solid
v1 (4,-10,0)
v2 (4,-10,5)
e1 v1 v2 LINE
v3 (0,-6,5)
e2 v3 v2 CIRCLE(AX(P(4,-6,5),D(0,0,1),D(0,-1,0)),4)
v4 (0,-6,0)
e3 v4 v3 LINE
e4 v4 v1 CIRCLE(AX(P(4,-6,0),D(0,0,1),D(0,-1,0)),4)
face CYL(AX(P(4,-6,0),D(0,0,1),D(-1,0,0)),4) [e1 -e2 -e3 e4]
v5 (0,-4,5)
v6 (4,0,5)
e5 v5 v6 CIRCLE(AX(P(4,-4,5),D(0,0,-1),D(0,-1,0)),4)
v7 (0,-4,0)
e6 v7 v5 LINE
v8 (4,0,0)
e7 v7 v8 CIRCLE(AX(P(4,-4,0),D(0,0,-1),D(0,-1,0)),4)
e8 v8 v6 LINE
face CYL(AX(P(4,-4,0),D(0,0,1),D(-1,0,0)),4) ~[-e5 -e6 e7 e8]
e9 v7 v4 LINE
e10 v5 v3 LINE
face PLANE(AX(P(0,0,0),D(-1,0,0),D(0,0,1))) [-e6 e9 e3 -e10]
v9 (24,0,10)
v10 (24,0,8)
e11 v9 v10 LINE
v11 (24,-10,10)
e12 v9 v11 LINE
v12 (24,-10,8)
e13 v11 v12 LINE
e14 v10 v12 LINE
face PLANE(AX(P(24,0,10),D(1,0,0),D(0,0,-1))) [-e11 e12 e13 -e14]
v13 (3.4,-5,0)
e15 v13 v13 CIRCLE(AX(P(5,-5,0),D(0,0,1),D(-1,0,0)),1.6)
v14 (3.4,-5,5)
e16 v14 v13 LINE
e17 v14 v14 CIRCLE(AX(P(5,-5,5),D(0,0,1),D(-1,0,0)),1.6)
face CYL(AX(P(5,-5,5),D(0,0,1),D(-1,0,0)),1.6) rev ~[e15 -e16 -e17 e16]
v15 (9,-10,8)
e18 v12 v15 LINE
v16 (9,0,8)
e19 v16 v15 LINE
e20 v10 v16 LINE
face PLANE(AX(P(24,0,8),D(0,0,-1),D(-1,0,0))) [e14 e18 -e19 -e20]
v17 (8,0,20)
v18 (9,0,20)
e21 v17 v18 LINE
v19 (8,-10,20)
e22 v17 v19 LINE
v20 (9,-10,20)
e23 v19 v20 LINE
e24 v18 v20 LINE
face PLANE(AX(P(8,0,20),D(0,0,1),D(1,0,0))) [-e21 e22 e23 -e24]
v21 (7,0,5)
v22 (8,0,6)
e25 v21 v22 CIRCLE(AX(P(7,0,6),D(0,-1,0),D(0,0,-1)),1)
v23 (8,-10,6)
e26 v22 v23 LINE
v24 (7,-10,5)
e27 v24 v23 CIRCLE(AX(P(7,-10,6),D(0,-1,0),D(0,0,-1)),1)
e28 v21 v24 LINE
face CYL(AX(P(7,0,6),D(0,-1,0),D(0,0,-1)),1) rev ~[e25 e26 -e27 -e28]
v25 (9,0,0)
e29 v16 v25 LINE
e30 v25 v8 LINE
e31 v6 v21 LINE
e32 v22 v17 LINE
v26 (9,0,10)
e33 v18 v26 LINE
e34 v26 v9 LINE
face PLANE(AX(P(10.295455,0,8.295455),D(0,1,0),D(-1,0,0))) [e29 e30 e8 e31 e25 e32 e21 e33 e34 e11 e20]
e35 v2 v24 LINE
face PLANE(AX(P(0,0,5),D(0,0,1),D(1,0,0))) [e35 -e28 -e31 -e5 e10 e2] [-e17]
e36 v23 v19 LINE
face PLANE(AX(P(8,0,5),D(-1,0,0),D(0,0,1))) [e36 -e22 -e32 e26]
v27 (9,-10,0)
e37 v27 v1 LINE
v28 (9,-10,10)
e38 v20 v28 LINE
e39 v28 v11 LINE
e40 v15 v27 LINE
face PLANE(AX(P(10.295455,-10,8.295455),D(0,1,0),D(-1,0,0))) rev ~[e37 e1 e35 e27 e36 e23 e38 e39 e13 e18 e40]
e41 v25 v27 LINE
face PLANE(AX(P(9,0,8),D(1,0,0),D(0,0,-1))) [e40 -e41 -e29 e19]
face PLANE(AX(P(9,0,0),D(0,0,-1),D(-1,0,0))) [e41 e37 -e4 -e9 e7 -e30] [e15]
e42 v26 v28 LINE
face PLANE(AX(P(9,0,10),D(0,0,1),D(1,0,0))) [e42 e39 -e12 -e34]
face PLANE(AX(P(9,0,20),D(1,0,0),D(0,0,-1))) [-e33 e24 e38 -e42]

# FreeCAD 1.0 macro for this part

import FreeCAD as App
import Part
import Sketcher


def edges_at(feature, points):
    """Names of the edges that pass closest to the given points."""
    edges = feature.Shape.Edges
    near = lambda p: min(range(len(edges)), key=lambda i: edges[i].distToShape(Part.Vertex(*p))[0])
    return sorted({f"Edge{near(p) + 1}" for p in points})

doc = App.newDocument("Part")
body = doc.addObject("PartDesign::Body", "Body")

sketch1 = body.newObject("Sketcher::SketchObject", "Sketch")
sketch1.AttachmentSupport = (doc.getObject("XZ_Plane"), [""])
sketch1.MapMode = "FlatFace"
sketch1.addGeometry([
    Part.LineSegment(App.Vector(0, 5, 0), App.Vector(0, 0, 0)),
    Part.LineSegment(App.Vector(0, 0, 0), App.Vector(9, 0, 0)),
    Part.LineSegment(App.Vector(9, 0, 0), App.Vector(9, 8, 0)),
    Part.LineSegment(App.Vector(9, 8, 0), App.Vector(24, 8, 0)),
    Part.LineSegment(App.Vector(24, 8, 0), App.Vector(24, 10, 0)),
    Part.LineSegment(App.Vector(24, 10, 0), App.Vector(9, 10, 0)),
    Part.LineSegment(App.Vector(9, 10, 0), App.Vector(9, 20, 0)),
    Part.LineSegment(App.Vector(9, 20, 0), App.Vector(8, 20, 0)),
    Part.LineSegment(App.Vector(8, 20, 0), App.Vector(8, 5, 0)),
    Part.LineSegment(App.Vector(8, 5, 0), App.Vector(0, 5, 0)),
], False)
sketch1.addConstraint([
    Sketcher.Constraint("Coincident", 0, 2, 1, 1),
    Sketcher.Constraint("Coincident", 1, 2, 2, 1),
    Sketcher.Constraint("Coincident", 2, 2, 3, 1),
    Sketcher.Constraint("Coincident", 3, 2, 4, 1),
    Sketcher.Constraint("Coincident", 4, 2, 5, 1),
    Sketcher.Constraint("Coincident", 5, 2, 6, 1),
    Sketcher.Constraint("Coincident", 6, 2, 7, 1),
    Sketcher.Constraint("Coincident", 7, 2, 8, 1),
    Sketcher.Constraint("Coincident", 8, 2, 9, 1),
    Sketcher.Constraint("Coincident", 9, 2, 0, 1),
    Sketcher.Constraint("Vertical", 0),
    Sketcher.Constraint("Horizontal", 1),
    Sketcher.Constraint("Vertical", 2),
    Sketcher.Constraint("Horizontal", 3),
    Sketcher.Constraint("Vertical", 4),
    Sketcher.Constraint("Horizontal", 5),
    Sketcher.Constraint("Vertical", 6),
    Sketcher.Constraint("Horizontal", 7),
    Sketcher.Constraint("Vertical", 8),
    Sketcher.Constraint("Horizontal", 9),
    Sketcher.Constraint("Coincident", 0, 2, -1, 1),
    Sketcher.Constraint("Vertical", 2, 2, 5, 2),
    Sketcher.Constraint("Equal", 9, 2),
    Sketcher.Constraint("Equal", 5, 8),
    Sketcher.Constraint("DistanceX", 1, 1, 1, 2, 9.0),
    Sketcher.Constraint("DistanceX", 3, 1, 3, 2, 15.0),
    Sketcher.Constraint("DistanceX", 7, 2, 7, 1, 1.0),
    Sketcher.Constraint("DistanceY", 0, 2, 0, 1, 5.0),
    Sketcher.Constraint("DistanceY", 4, 1, 4, 2, 2.0),
])
pad1 = body.newObject("PartDesign::Pad", "Pad")
pad1.Profile = sketch1
pad1.Length = 10

sketch2 = body.newObject("Sketcher::SketchObject", "Sketch001")
sketch2.AttachmentSupport = (doc.getObject("XY_Plane"), [""])
sketch2.MapMode = "FlatFace"
sketch2.AttachmentOffset = App.Placement(App.Vector(0, 0, 5), App.Rotation())
sketch2.addGeometry(Part.Circle(App.Vector(5, -5, 0), App.Vector(0, 0, 1), 1.6), False)
sketch2.addConstraint([
    Sketcher.Constraint("Diameter", 0, 3.2),
    Sketcher.Constraint("DistanceX", -1, 1, 0, 3, 5.0),
    Sketcher.Constraint("DistanceY", 0, 3, -1, 1, 5.0),
])
pocket1 = body.newObject("PartDesign::Pocket", "Pocket")
pocket1.Profile = sketch2
pocket1.Length = 5
doc.recompute()

fillet = body.newObject("PartDesign::Fillet", "Fillet")
fillet.Base = (pocket1, edges_at(pocket1, [(0, 0, 2.5), (0, -10, 2.5)]))
fillet.Radius = 4
doc.recompute()

fillet2 = body.newObject("PartDesign::Fillet", "Fillet001")
fillet2.Base = (fillet, edges_at(fillet, [(8, -5, 5)]))
fillet2.Radius = 1

doc.recompute()
